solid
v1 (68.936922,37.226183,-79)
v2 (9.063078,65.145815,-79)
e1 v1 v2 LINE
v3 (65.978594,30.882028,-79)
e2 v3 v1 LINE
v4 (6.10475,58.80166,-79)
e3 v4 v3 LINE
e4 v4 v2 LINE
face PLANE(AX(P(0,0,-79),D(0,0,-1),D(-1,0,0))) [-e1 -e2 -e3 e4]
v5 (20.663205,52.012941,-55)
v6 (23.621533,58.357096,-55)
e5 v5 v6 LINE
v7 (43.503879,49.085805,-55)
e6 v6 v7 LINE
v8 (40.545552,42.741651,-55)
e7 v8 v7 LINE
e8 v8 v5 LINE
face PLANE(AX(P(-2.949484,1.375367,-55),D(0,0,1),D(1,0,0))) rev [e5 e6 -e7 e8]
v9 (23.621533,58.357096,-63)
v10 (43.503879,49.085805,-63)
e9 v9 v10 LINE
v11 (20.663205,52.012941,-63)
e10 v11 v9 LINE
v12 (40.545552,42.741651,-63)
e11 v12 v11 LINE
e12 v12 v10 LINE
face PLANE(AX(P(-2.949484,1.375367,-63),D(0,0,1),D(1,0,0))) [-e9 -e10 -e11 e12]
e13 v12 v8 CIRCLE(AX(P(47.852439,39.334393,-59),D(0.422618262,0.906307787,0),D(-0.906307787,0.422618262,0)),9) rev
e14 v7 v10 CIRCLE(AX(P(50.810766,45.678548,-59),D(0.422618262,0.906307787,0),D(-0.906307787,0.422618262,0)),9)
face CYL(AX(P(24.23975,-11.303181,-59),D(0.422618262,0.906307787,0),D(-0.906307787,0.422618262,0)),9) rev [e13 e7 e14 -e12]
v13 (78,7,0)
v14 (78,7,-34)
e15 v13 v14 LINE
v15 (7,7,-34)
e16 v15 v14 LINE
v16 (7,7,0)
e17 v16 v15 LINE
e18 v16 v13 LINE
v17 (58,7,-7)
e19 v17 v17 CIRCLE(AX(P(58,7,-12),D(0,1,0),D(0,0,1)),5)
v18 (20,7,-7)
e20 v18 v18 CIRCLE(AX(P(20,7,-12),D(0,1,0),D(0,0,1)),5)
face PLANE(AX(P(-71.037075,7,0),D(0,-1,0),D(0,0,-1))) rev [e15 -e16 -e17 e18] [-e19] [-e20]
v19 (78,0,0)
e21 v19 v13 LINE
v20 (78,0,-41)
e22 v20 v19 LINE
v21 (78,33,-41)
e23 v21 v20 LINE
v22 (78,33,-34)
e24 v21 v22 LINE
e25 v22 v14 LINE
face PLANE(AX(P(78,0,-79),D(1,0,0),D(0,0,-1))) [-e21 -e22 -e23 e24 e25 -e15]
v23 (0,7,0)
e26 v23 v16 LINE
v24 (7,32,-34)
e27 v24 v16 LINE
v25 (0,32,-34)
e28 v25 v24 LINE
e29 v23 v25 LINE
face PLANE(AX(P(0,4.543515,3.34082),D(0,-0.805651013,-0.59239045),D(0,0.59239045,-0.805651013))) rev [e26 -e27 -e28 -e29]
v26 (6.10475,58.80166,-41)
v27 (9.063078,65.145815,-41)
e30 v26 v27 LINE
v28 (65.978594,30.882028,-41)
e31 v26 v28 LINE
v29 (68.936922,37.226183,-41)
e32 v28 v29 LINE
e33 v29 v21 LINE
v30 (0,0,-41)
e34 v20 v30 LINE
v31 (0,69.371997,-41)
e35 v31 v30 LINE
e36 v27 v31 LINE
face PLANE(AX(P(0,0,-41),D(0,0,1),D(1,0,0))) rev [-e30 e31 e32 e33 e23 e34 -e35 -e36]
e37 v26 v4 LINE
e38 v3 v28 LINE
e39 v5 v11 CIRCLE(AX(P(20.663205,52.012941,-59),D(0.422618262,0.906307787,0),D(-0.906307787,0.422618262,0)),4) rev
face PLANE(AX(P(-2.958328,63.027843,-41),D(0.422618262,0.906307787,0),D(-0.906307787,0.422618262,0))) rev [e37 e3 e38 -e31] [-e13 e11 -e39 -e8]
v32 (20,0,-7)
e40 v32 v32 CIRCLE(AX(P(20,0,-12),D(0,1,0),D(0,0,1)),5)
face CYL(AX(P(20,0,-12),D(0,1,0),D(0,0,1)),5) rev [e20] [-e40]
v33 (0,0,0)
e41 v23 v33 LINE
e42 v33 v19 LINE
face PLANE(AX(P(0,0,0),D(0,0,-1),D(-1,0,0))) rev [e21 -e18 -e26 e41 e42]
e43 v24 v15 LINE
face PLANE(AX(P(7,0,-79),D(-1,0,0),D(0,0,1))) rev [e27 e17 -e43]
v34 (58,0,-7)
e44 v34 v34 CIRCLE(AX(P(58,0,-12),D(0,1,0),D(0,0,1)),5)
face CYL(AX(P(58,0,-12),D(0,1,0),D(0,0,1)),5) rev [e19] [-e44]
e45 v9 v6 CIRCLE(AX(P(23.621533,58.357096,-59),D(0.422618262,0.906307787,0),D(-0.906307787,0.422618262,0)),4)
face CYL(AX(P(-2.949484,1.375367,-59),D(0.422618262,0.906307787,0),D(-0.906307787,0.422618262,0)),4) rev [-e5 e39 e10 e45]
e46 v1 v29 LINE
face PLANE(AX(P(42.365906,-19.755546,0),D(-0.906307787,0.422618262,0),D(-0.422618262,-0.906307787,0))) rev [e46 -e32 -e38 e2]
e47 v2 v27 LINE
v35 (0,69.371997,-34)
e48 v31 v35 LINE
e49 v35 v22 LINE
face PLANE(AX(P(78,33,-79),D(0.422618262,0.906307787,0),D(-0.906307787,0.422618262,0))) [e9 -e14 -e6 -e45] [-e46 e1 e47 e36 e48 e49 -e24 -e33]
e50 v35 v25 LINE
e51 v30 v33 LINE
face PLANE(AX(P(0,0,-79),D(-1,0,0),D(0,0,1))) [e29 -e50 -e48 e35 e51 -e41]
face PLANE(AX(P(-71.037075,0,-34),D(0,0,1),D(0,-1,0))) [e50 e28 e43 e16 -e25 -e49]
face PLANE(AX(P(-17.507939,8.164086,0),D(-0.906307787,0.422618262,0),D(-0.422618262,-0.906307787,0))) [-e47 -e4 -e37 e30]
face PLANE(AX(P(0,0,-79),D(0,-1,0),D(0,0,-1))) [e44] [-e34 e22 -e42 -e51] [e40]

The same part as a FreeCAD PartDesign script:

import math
import FreeCAD as App
import Part
import Sketcher

V = App.Vector
Q = App.Units.Quantity


def add_polygon(sketch, points):
    """Adds a closed chain of lines whose ends are joined by coincident constraints."""
    first, n = sketch.GeometryCount, len(points)
    for a, b in zip(points, points[1:] + points[:1]):
        sketch.addGeometry(Part.LineSegment(App.Vector(*a, 0), App.Vector(*b, 0)), False)
    for i in range(n):
        sketch.addConstraint(Sketcher.Constraint("Coincident", first + i, 2, first + (i + 1) % n, 1))

doc = App.newDocument("Part")
params = doc.addObject("Spreadsheet::Sheet", "Params")
for row, (alias, value) in enumerate([
    ("sketch1_width", "78 mm"),
    ("sketch1_height", "33 mm"),
    ("pad1_length", "79 mm"),
    ("sketch2_height", "34 mm"),
    ("pocket1_length", "71 mm"),
    ("sketch3_height", "34 mm"),
    ("sketch4_radius", "4 mm"),
    ("sketch4_radius2", "9 mm"),
    ("sketch4_width", "10 mm"),
    ("sketch4_height", "38 mm"),
    ("sketch5_width", "38 mm"),
    ("sketch6_diameter", "10 mm"),
], start=1):
    params.set(f"A{row}", alias)
    params.set(f"B{row}", "=" + value)
    params.setAlias(f"B{row}", alias)

body = doc.addObject("PartDesign::Body", "Body")

# Sketch on XY plane
sketch1 = body.newObject("Sketcher::SketchObject", "Sketch")
sketch1.AttachmentSupport = (doc.getObject("XY_Plane"), [""])
sketch1.MapMode = "FlatFace"
add_polygon(sketch1, [(78, 33), (0, 69), (0, 0), (78, 0)])  # lines 0-3
sketch1.addConstraint([
    Sketcher.Constraint("Vertical", 1),
    Sketcher.Constraint("Horizontal", 2),
    Sketcher.Constraint("Vertical", 3),
    Sketcher.Constraint("Coincident", 1, 2, -1, 1),
    Sketcher.Constraint("DistanceX", 2, 1, 2, 2, Q("78 mm")),
    Sketcher.Constraint("DistanceY", 3, 1, 3, 2, Q("33 mm")),
    Sketcher.Constraint("Angle", 0, Q("155 deg")),
])
sketch1.setExpression("Constraints[8]", "Params.sketch1_width")
sketch1.setExpression("Constraints[9]", "Params.sketch1_height")
pad1 = body.newObject("PartDesign::Pad", "Pad")
pad1.Profile = sketch1
pad1.setExpression("Length", "Params.pad1_length")
pad1.Reversed = True

# Sketch on YZ plane
sketch2 = body.newObject("Sketcher::SketchObject", "Sketch001")
sketch2.AttachmentSupport = (doc.getObject("YZ_Plane"), [""])
sketch2.MapMode = "FlatFace"
sketch2.AttachmentOffset = App.Placement(V(0, 0, 78), App.Rotation())
add_polygon(sketch2, [(69, -34), (69, 0), (7, 0), (7, -34)])  # lines 0-3
sketch2.addConstraint([
    Sketcher.Constraint("Vertical", 0),
    Sketcher.Constraint("Horizontal", 1),
    Sketcher.Constraint("Vertical", 2),
    Sketcher.Constraint("Horizontal", 3),
    Sketcher.Constraint("PointOnObject", 0, 2, -1),
    Sketcher.Constraint("DistanceY", 0, 1, 0, 2, Q("34 mm")),
    Sketcher.Constraint("DistanceX", -1, 1, 1, 2, Q("7 mm")),
    Sketcher.Constraint("DistanceX", 1, 2, 1, 1, Q("62.371997 mm")),
])
sketch2.setExpression("Constraints[9]", "Params.sketch2_height")
pocket1 = body.newObject("PartDesign::Pocket", "Pocket")
pocket1.Profile = sketch2
pocket1.setExpression("Length", "Params.pocket1_length")

# Sketch on YZ plane
sketch3 = body.newObject("Sketcher::SketchObject", "Sketch002")
sketch3.AttachmentSupport = (doc.getObject("YZ_Plane"), [""])
sketch3.MapMode = "FlatFace"
sketch3.AttachmentOffset = App.Placement(V(0, 0, 78), App.Rotation())
add_polygon(sketch3, [(69, 0), (7, 0), (32, -34), (69, -34)])  # lines 0-3
sketch3.addConstraint([
    Sketcher.Constraint("Horizontal", 0),
    Sketcher.Constraint("Horizontal", 2),
    Sketcher.Constraint("Vertical", 3),
    Sketcher.Constraint("PointOnObject", 0, 2, -1),
    Sketcher.Constraint("DistanceY", 3, 1, 3, 2, Q("34 mm")),
    Sketcher.Constraint("DistanceX", -1, 1, 0, 2, Q("7 mm")),
    Sketcher.Constraint("DistanceX", -1, 1, 1, 2, Q("32 mm")),
    Sketcher.Constraint("DistanceX", 0, 2, 0, 1, Q("62.371997 mm")),
])
sketch3.setExpression("Constraints[8]", "Params.sketch3_height")
pocket2 = body.newObject("PartDesign::Pocket", "Pocket001")
pocket2.Profile = sketch3
pocket2.Type = "ThroughAll"

# Sketch on an angled plane
sketch4 = body.newObject("Sketcher::SketchObject", "Sketch003")
sketch4.Placement = App.Placement(V(26.571017, 56.981729, 0), App.Rotation(V(0.906307787, -0.422618262, 0), V(0, 0, -1), V(0.422618262, 0.906307787, 0), "ZXY"))
add_polygon(sketch4, [(-29.3, 79), (-29.3, 41), (-19.3, 41), (-19.3, 79)])  # lines 0-3
add_polygon(sketch4, [(98.2, 41), (98.2, 79), (46.7, 79), (46.7, 41)])  # lines 4-7
sketch4.addGeometry(Part.ArcOfCircle(Part.Circle(V(-3.3, 59, 0), V(0, 0, 1), 4), math.radians(90), math.radians(270)), False)  # 8
sketch4.addGeometry(Part.LineSegment(V(-3.3, 55, 0), V(18.7, 55, 0)), False)  # 9
sketch4.addGeometry(Part.ArcOfCircle(Part.Circle(V(26.7, 59, 0), V(0, 0, 1), 9), math.radians(-154), math.radians(154)), False)  # 10
sketch4.addGeometry(Part.LineSegment(V(18.7, 63, 0), V(-3.3, 63, 0)), False)  # 11
sketch4.addConstraint([
    Sketcher.Constraint("Tangent", 8, 2, 9, 1),
    Sketcher.Constraint("Coincident", 9, 2, 10, 1),
    Sketcher.Constraint("Coincident", 10, 2, 11, 1),
    Sketcher.Constraint("Tangent", 11, 2, 8, 1),
    Sketcher.Constraint("Vertical", 0),
    Sketcher.Constraint("Horizontal", 1),
    Sketcher.Constraint("Vertical", 2),
    Sketcher.Constraint("Horizontal", 3),
    Sketcher.Constraint("Vertical", 4),
    Sketcher.Constraint("Horizontal", 5),
    Sketcher.Constraint("Vertical", 6),
    Sketcher.Constraint("Horizontal", 7),
    Sketcher.Constraint("Horizontal", 9),
    Sketcher.Constraint("Horizontal", 11),
    Sketcher.Constraint("Horizontal", 8, 3, 10, 3),
    Sketcher.Constraint("Horizontal", 3, 2, 4, 2),
    Sketcher.Constraint("Horizontal", 1, 2, 6, 2),
    Sketcher.Constraint("Radius", 8, Q("4 mm")),
    Sketcher.Constraint("Radius", 10, Q("9 mm")),
    Sketcher.Constraint("DistanceX", 1, 1, 1, 2, Q("10 mm")),
    Sketcher.Constraint("DistanceY", 0, 2, 0, 1, Q("38 mm")),
    Sketcher.Constraint("DistanceY", -1, 1, 8, 3, Q("59 mm")),
    Sketcher.Constraint("DistanceY", -1, 1, 0, 2, Q("41 mm")),
    Sketcher.Constraint("DistanceX", 8, 3, 10, 3, Q("30 mm")),
    Sketcher.Constraint("DistanceX", 10, 3, 5, 2, Q("20 mm")),
    Sketcher.Constraint("DistanceX", 5, 2, 5, 1, Q("51.460527 mm")),
    Sketcher.Constraint("DistanceX", -1, 1, 4, 2, Q("98.206131 mm")),
    Sketcher.Constraint("DistanceX", 0, 2, -1, 1, Q("29.317873 mm")),
])
sketch4.setExpression("Constraints[25]", "Params.sketch4_radius")
sketch4.setExpression("Constraints[26]", "Params.sketch4_radius2")
sketch4.setExpression("Constraints[27]", "Params.sketch4_width")
sketch4.setExpression("Constraints[28]", "Params.sketch4_height")
pocket3 = body.newObject("PartDesign::Pocket", "Pocket002")
pocket3.Profile = sketch4
pocket3.Type = "ThroughAll"

# Sketch on an angled plane
sketch5 = body.newObject("Sketcher::SketchObject", "Sketch004")
sketch5.Placement = App.Placement(V(42.365906, -19.755546, 0), App.Rotation(V(0, 0, -1), V(0.422618262, 0.906307787, 0), V(0.906307787, -0.422618262, 0), "ZXY"))
add_polygon(sketch5, [(41, 56), (41, -9), (79, -9), (79, 56)])  # lines 0-3
sketch5.addConstraint([
    Sketcher.Constraint("Vertical", 0),
    Sketcher.Constraint("Horizontal", 1),
    Sketcher.Constraint("Vertical", 2),
    Sketcher.Constraint("Horizontal", 3),
    Sketcher.Constraint("DistanceX", 1, 1, 1, 2, Q("38 mm")),
    Sketcher.Constraint("DistanceX", -1, 1, 0, 2, Q("41 mm")),
    Sketcher.Constraint("DistanceY", 0, 2, 0, 1, Q("64.412451 mm")),
    Sketcher.Constraint("DistanceY", 0, 2, -1, 1, Q("8.54007 mm")),
])
sketch5.setExpression("Constraints[8]", "Params.sketch5_width")
pocket4 = body.newObject("PartDesign::Pocket", "Pocket003")
pocket4.Profile = sketch5
pocket4.Type = "ThroughAll"

# Sketch on XZ plane
sketch6 = body.newObject("Sketcher::SketchObject", "Sketch005")
sketch6.AttachmentSupport = (doc.getObject("XZ_Plane"), [""])
sketch6.MapMode = "FlatFace"
sketch6.AttachmentOffset = App.Placement(V(0, 0, -7), App.Rotation())
sketch6.addGeometry([
    Part.Circle(V(20, -12, 0), V(0, 0, 1), 5),
    Part.Circle(V(58, -12, 0), V(0, 0, 1), 5),
], False)
sketch6.addConstraint([
    Sketcher.Constraint("Equal", 0, 1),
    Sketcher.Constraint("Horizontal", 0, 3, 1, 3),
    Sketcher.Constraint("Diameter", 0, Q("10 mm")),
    Sketcher.Constraint("DistanceX", -1, 1, 0, 3, Q("20 mm")),
    Sketcher.Constraint("DistanceY", 0, 3, -1, 1, Q("12 mm")),
    Sketcher.Constraint("DistanceX", -1, 1, 1, 3, Q("58 mm")),
])
sketch6.setExpression("Constraints[2]", "Params.sketch6_diameter")
pocket5 = body.newObject("PartDesign::Pocket", "Pocket004")
pocket5.Profile = sketch6
pocket5.Type = "ThroughAll"
pocket5.Reversed = True

doc.recompute()
